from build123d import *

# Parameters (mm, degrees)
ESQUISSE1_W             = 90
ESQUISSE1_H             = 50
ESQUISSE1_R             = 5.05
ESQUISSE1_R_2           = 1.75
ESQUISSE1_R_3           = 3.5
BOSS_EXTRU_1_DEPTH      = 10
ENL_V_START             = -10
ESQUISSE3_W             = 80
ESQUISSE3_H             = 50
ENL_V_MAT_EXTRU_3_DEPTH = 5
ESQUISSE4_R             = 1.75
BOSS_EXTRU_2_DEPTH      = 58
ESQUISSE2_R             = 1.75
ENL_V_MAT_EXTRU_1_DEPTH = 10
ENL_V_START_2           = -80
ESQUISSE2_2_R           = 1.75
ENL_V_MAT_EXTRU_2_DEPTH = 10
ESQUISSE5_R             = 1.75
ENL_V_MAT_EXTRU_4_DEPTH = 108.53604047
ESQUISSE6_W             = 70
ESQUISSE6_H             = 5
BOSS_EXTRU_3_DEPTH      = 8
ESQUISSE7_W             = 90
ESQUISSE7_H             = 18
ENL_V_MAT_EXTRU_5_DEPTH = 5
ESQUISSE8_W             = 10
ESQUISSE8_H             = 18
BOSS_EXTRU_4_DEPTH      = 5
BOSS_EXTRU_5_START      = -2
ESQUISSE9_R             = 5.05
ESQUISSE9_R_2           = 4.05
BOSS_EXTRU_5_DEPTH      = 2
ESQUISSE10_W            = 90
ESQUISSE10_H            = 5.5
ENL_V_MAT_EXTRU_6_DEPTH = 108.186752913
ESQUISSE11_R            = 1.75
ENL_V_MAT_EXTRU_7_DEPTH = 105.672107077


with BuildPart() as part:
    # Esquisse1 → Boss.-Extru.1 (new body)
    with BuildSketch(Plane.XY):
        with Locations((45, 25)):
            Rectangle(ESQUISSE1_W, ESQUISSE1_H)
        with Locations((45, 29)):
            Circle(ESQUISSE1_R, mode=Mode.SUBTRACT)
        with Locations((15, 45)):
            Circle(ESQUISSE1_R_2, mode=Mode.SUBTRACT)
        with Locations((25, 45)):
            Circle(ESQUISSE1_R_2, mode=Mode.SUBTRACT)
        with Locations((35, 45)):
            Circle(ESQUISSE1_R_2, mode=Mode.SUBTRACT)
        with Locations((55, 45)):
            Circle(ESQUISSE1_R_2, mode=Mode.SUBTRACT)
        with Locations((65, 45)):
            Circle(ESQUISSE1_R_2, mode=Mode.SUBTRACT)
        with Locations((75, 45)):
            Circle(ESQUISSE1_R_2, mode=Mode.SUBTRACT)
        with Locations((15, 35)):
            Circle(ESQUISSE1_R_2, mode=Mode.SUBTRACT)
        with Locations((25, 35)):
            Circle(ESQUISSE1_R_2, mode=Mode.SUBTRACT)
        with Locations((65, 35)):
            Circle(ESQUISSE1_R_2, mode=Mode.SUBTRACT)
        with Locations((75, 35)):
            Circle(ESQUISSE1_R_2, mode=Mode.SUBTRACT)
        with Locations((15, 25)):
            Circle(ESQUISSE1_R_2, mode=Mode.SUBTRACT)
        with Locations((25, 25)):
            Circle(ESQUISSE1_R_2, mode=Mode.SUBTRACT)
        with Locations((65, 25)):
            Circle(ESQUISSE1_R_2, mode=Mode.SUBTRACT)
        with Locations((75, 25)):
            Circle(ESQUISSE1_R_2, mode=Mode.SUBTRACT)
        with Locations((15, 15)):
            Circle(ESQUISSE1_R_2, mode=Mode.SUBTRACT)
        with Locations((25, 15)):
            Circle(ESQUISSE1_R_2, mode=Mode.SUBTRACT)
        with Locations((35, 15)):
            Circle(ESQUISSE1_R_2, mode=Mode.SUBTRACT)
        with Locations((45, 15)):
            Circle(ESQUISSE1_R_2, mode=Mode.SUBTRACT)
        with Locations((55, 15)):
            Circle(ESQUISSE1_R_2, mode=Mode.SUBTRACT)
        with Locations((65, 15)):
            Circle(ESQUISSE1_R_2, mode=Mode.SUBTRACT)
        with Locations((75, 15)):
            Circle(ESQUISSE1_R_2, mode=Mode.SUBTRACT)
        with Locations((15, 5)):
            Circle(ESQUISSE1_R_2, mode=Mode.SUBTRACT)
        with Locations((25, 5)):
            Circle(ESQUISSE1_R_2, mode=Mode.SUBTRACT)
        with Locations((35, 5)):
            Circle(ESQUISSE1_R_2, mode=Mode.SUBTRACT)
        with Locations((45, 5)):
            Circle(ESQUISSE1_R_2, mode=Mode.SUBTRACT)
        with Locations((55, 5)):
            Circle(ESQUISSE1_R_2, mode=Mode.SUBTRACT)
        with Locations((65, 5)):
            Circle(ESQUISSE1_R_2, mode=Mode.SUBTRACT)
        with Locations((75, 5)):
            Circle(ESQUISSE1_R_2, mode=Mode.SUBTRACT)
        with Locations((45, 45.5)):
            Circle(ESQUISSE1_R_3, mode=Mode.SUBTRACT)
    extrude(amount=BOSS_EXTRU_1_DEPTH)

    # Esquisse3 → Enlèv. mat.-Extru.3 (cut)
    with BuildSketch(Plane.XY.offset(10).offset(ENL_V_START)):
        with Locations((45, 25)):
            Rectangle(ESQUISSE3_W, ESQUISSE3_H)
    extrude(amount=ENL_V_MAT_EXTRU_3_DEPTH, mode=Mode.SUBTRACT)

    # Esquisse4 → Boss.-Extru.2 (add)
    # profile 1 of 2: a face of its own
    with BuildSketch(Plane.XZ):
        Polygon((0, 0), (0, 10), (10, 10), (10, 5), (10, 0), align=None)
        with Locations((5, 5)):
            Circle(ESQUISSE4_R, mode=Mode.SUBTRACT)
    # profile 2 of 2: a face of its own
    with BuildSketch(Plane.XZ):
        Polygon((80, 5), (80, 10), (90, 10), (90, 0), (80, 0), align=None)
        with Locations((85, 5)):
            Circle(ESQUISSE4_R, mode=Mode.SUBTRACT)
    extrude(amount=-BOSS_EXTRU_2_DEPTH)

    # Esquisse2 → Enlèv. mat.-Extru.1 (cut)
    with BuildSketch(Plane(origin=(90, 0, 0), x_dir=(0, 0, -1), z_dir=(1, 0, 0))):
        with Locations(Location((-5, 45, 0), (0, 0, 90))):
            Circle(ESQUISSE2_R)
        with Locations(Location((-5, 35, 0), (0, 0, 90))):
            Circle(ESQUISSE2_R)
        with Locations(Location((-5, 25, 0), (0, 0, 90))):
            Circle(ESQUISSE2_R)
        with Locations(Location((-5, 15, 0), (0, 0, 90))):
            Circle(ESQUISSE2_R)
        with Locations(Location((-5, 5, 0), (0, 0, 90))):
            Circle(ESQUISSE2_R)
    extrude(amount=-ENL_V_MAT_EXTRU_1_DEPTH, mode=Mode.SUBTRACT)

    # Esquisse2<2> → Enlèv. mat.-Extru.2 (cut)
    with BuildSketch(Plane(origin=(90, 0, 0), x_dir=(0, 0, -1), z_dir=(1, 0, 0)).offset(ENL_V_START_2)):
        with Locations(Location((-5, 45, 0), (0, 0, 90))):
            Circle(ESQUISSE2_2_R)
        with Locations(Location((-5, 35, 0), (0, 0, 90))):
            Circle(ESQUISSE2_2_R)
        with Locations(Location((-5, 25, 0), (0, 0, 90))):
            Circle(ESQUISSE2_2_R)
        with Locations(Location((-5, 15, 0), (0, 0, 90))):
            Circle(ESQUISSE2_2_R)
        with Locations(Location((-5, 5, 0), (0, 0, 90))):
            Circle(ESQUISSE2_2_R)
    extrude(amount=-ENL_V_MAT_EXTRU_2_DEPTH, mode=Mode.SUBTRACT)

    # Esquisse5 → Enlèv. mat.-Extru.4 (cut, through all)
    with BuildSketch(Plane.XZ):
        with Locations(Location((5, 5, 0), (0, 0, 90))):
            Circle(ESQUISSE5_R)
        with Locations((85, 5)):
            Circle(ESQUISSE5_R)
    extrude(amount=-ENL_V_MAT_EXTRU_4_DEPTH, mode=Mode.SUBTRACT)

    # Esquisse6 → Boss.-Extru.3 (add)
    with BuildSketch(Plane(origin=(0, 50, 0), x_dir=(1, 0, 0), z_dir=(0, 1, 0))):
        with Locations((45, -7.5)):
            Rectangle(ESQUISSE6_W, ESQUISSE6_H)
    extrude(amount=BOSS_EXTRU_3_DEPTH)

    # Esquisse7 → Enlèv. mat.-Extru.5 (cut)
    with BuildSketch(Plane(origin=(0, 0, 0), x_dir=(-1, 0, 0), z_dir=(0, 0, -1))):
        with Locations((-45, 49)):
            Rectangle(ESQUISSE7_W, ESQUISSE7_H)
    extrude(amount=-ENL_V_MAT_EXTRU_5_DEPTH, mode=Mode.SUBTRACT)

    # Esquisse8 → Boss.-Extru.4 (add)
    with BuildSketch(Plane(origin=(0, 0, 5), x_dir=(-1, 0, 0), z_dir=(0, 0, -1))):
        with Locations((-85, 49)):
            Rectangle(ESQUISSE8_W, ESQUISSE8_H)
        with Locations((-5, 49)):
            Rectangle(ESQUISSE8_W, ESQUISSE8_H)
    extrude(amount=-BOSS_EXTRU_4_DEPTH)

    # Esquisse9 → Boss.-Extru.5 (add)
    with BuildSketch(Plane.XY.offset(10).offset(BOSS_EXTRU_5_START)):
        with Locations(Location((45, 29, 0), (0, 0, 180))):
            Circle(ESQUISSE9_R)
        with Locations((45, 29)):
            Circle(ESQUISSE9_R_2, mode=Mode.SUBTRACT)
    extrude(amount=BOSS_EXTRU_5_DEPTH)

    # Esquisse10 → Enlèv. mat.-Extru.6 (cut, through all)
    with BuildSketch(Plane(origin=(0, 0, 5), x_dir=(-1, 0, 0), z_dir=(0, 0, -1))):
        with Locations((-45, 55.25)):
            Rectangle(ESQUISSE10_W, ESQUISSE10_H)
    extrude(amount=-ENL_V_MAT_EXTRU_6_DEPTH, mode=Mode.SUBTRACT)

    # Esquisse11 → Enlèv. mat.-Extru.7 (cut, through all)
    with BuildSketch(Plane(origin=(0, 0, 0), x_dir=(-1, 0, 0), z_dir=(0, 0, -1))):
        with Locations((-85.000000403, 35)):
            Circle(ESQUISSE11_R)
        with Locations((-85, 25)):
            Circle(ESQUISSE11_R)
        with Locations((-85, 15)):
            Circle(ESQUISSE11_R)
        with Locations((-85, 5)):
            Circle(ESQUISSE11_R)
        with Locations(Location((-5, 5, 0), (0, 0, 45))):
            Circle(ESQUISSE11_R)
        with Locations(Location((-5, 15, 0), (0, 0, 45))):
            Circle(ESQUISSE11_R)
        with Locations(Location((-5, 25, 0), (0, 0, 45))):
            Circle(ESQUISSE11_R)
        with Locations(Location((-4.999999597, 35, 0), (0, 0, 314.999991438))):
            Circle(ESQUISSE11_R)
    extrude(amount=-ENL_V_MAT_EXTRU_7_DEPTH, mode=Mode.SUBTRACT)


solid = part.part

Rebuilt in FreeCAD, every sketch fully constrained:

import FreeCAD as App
import Part
import Sketcher

V = App.Vector
Q = App.Units.Quantity

doc = App.newDocument("Part")
body = doc.addObject("PartDesign::Body", "Body")

sketch1 = body.newObject("Sketcher::SketchObject", "Sketch")
sketch1.AttachmentSupport = (doc.getObject("XY_Plane"), [""])
sketch1.MapMode = "FlatFace"
sketch1.addGeometry([
    Part.LineSegment(V(0, 50, 0), V(0, 0, 0)),
    Part.LineSegment(V(0, 0, 0), V(90, 0, 0)),
    Part.LineSegment(V(90, 0, 0), V(90, 50, 0)),
    Part.LineSegment(V(90, 50, 0), V(0, 50, 0)),
    Part.Circle(V(15, 5, 0), V(0, 0, 1), 1.8),
    Part.Circle(V(25, 5, 0), V(0, 0, 1), 1.8),
    Part.Circle(V(35, 5, 0), V(0, 0, 1), 1.8),
    Part.Circle(V(15, 15, 0), V(0, 0, 1), 1.8),
    Part.Circle(V(25, 15, 0), V(0, 0, 1), 1.8),
    Part.Circle(V(15, 25, 0), V(0, 0, 1), 1.8),
    Part.Circle(V(25, 25, 0), V(0, 0, 1), 1.8),
    Part.Circle(V(35, 15, 0), V(0, 0, 1), 1.8),
    Part.Circle(V(45, 5, 0), V(0, 0, 1), 1.8),
    Part.Circle(V(55, 5, 0), V(0, 0, 1), 1.8),
    Part.Circle(V(65, 5, 0), V(0, 0, 1), 1.8),
    Part.Circle(V(75, 5, 0), V(0, 0, 1), 1.8),
    Part.Circle(V(45, 15, 0), V(0, 0, 1), 1.8),
    Part.Circle(V(55, 15, 0), V(0, 0, 1), 1.8),
    Part.Circle(V(65, 15, 0), V(0, 0, 1), 1.8),
    Part.Circle(V(75, 15, 0), V(0, 0, 1), 1.8),
    Part.Circle(V(65, 25, 0), V(0, 0, 1), 1.8),
    Part.Circle(V(75, 25, 0), V(0, 0, 1), 1.8),
    Part.Circle(V(15, 35, 0), V(0, 0, 1), 1.8),
    Part.Circle(V(25, 35, 0), V(0, 0, 1), 1.8),
    Part.Circle(V(15, 45, 0), V(0, 0, 1), 1.8),
    Part.Circle(V(25, 45, 0), V(0, 0, 1), 1.8),
    Part.Circle(V(35, 45, 0), V(0, 0, 1), 1.8),
    Part.Circle(V(45, 29, 0), V(0, 0, 1), 5),
    Part.Circle(V(65, 35, 0), V(0, 0, 1), 1.8),
    Part.Circle(V(75, 35, 0), V(0, 0, 1), 1.8),
    Part.Circle(V(45, 45.5, 0), V(0, 0, 1), 3.5),
    Part.Circle(V(55, 45, 0), V(0, 0, 1), 1.8),
    Part.Circle(V(65, 45, 0), V(0, 0, 1), 1.8),
    Part.Circle(V(75, 45, 0), V(0, 0, 1), 1.8),
], False)
sketch1.addConstraint([
    Sketcher.Constraint("Coincident", 0, 2, 1, 1),
    Sketcher.Constraint("Coincident", 1, 2, 2, 1),
    Sketcher.Constraint("Coincident", 2, 2, 3, 1),
    Sketcher.Constraint("Coincident", 3, 2, 0, 1),
    Sketcher.Constraint("Vertical", 0),
    Sketcher.Constraint("Horizontal", 1),
    Sketcher.Constraint("Vertical", 2),
    Sketcher.Constraint("Horizontal", 3),
    Sketcher.Constraint("Coincident", 0, 2, -1, 1),
    Sketcher.Constraint("Equal", 4, 5),
    Sketcher.Constraint("Equal", 5, 6),
    Sketcher.Constraint("Equal", 6, 7),
    Sketcher.Constraint("Equal", 7, 8),
    Sketcher.Constraint("Equal", 8, 9),
    Sketcher.Constraint("Equal", 9, 10),
    Sketcher.Constraint("Equal", 10, 11),
    Sketcher.Constraint("Equal", 11, 12),
    Sketcher.Constraint("Equal", 12, 13),
    Sketcher.Constraint("Equal", 13, 14),
    Sketcher.Constraint("Equal", 14, 15),
    Sketcher.Constraint("Equal", 15, 16),
    Sketcher.Constraint("Equal", 16, 17),
    Sketcher.Constraint("Equal", 17, 18),
    Sketcher.Constraint("Equal", 18, 19),
    Sketcher.Constraint("Equal", 19, 20),
    Sketcher.Constraint("Equal", 20, 21),
    Sketcher.Constraint("Equal", 21, 22),
    Sketcher.Constraint("Equal", 22, 23),
    Sketcher.Constraint("Equal", 23, 24),
    Sketcher.Constraint("Equal", 24, 25),
    Sketcher.Constraint("Equal", 25, 26),
    Sketcher.Constraint("Equal", 26, 28),
    Sketcher.Constraint("Equal", 28, 29),
    Sketcher.Constraint("Equal", 29, 31),
    Sketcher.Constraint("Equal", 31, 32),
    Sketcher.Constraint("Equal", 32, 33),
    Sketcher.Constraint("Horizontal", 4, 3, 5, 3),
    Sketcher.Constraint("Horizontal", 5, 3, 6, 3),
    Sketcher.Constraint("Horizontal", 7, 3, 8, 3),
    Sketcher.Constraint("Horizontal", 9, 3, 10, 3),
    Sketcher.Constraint("Horizontal", 8, 3, 11, 3),
    Sketcher.Constraint("Horizontal", 6, 3, 12, 3),
    Sketcher.Constraint("Horizontal", 12, 3, 13, 3),
    Sketcher.Constraint("Horizontal", 13, 3, 14, 3),
    Sketcher.Constraint("Horizontal", 14, 3, 15, 3),
    Sketcher.Constraint("Horizontal", 11, 3, 16, 3),
    Sketcher.Constraint("Horizontal", 16, 3, 17, 3),
    Sketcher.Constraint("Horizontal", 17, 3, 18, 3),
    Sketcher.Constraint("Horizontal", 18, 3, 19, 3),
    Sketcher.Constraint("Horizontal", 10, 3, 20, 3),
    Sketcher.Constraint("Horizontal", 20, 3, 21, 3),
    Sketcher.Constraint("Horizontal", 22, 3, 23, 3),
    Sketcher.Constraint("Horizontal", 24, 3, 25, 3),
    Sketcher.Constraint("Horizontal", 25, 3, 26, 3),
    Sketcher.Constraint("Horizontal", 23, 3, 28, 3),
    Sketcher.Constraint("Horizontal", 28, 3, 29, 3),
    Sketcher.Constraint("Horizontal", 26, 3, 31, 3),
    Sketcher.Constraint("Horizontal", 31, 3, 32, 3),
    Sketcher.Constraint("Horizontal", 32, 3, 33, 3),
    Sketcher.Constraint("Vertical", 4, 3, 7, 3),
    Sketcher.Constraint("Vertical", 5, 3, 8, 3),
    Sketcher.Constraint("Vertical", 7, 3, 9, 3),
    Sketcher.Constraint("Vertical", 8, 3, 10, 3),
    Sketcher.Constraint("Vertical", 6, 3, 11, 3),
    Sketcher.Constraint("Vertical", 12, 3, 16, 3),
    Sketcher.Constraint("Vertical", 13, 3, 17, 3),
    Sketcher.Constraint("Vertical", 14, 3, 18, 3),
    Sketcher.Constraint("Vertical", 15, 3, 19, 3),
    Sketcher.Constraint("Vertical", 18, 3, 20, 3),
    Sketcher.Constraint("Vertical", 19, 3, 21, 3),
    Sketcher.Constraint("Vertical", 9, 3, 22, 3),
    Sketcher.Constraint("Vertical", 10, 3, 23, 3),
    Sketcher.Constraint("Vertical", 22, 3, 24, 3),
    Sketcher.Constraint("Vertical", 23, 3, 25, 3),
    Sketcher.Constraint("Vertical", 11, 3, 26, 3),
    Sketcher.Constraint("Vertical", 16, 3, 27, 3),
    Sketcher.Constraint("Vertical", 20, 3, 28, 3),
    Sketcher.Constraint("Vertical", 21, 3, 29, 3),
    Sketcher.Constraint("Vertical", 27, 3, 30, 3),
    Sketcher.Constraint("Vertical", 17, 3, 31, 3),
    Sketcher.Constraint("Vertical", 28, 3, 32, 3),
    Sketcher.Constraint("Vertical", 29, 3, 33, 3),
    Sketcher.Constraint("Diameter", 30, Q("7 mm")),
    Sketcher.Constraint("Diameter", 4, Q("3.5 mm")),
    Sketcher.Constraint("Diameter", 27, Q("10.1 mm")),
    Sketcher.Constraint("DistanceX", 1, 1, 1, 2, Q("90 mm")),
    Sketcher.Constraint("DistanceY", 0, 2, 0, 1, Q("50 mm")),
    Sketcher.Constraint("DistanceX", -1, 1, 4, 3, Q("15 mm")),
    Sketcher.Constraint("DistanceY", -1, 1, 4, 3, Q("5 mm")),
    Sketcher.Constraint("DistanceX", -1, 1, 5, 3, Q("25 mm")),
    Sketcher.Constraint("DistanceX", -1, 1, 6, 3, Q("35 mm")),
    Sketcher.Constraint("DistanceY", -1, 1, 7, 3, Q("15 mm")),
    Sketcher.Constraint("DistanceY", -1, 1, 9, 3, Q("25 mm")),
    Sketcher.Constraint("DistanceX", -1, 1, 12, 3, Q("45 mm")),
    Sketcher.Constraint("DistanceX", -1, 1, 13, 3, Q("55 mm")),
    Sketcher.Constraint("DistanceX", -1, 1, 14, 3, Q("65 mm")),
    Sketcher.Constraint("DistanceX", -1, 1, 15, 3, Q("75 mm")),
    Sketcher.Constraint("DistanceY", -1, 1, 22, 3, Q("35 mm")),
    Sketcher.Constraint("DistanceY", -1, 1, 24, 3, Q("45 mm")),
    Sketcher.Constraint("DistanceY", -1, 1, 27, 3, Q("29 mm")),
    Sketcher.Constraint("DistanceY", -1, 1, 30, 3, Q("45.5 mm")),
])
pad1 = body.newObject("PartDesign::Pad", "Pad")
pad1.Profile = sketch1
pad1.Length = 10

sketch2 = body.newObject("Sketcher::SketchObject", "Sketch001")
sketch2.AttachmentSupport = (doc.getObject("XY_Plane"), [""])
sketch2.MapMode = "FlatFace"
sketch2.addGeometry([
    Part.LineSegment(V(5, 50, 0), V(5, 0, 0)),
    Part.LineSegment(V(5, 0, 0), V(85, 0, 0)),
    Part.LineSegment(V(85, 0, 0), V(85, 50, 0)),
    Part.LineSegment(V(85, 50, 0), V(5, 50, 0)),
], False)
sketch2.addConstraint([
    Sketcher.Constraint("Coincident", 0, 2, 1, 1),
    Sketcher.Constraint("Coincident", 1, 2, 2, 1),
    Sketcher.Constraint("Coincident", 2, 2, 3, 1),
    Sketcher.Constraint("Coincident", 3, 2, 0, 1),
    Sketcher.Constraint("Vertical", 0),
    Sketcher.Constraint("Horizontal", 1),
    Sketcher.Constraint("Vertical", 2),
    Sketcher.Constraint("Horizontal", 3),
    Sketcher.Constraint("PointOnObject", 0, 2, -1),
    Sketcher.Constraint("DistanceX", 1, 1, 1, 2, Q("80 mm")),
    Sketcher.Constraint("DistanceY", 0, 2, 0, 1, Q("50 mm")),
    Sketcher.Constraint("DistanceX", -1, 1, 0, 2, Q("5 mm")),
])
pocket1 = body.newObject("PartDesign::Pocket", "Pocket")
pocket1.Profile = sketch2
pocket1.Length = 5
pocket1.Reversed = True

sketch3 = body.newObject("Sketcher::SketchObject", "Sketch002")
sketch3.AttachmentSupport = (doc.getObject("XZ_Plane"), [""])
sketch3.MapMode = "FlatFace"
sketch3.addGeometry([
    Part.LineSegment(V(0, 10, 0), V(0, 0, 0)),
    Part.LineSegment(V(0, 0, 0), V(10, 0, 0)),
    Part.LineSegment(V(10, 0, 0), V(10, 10, 0)),
    Part.LineSegment(V(10, 10, 0), V(0, 10, 0)),
    Part.Circle(V(5, 5, 0), V(0, 0, 1), 1.8),
    Part.LineSegment(V(80, 10, 0), V(80, 0, 0)),
    Part.LineSegment(V(80, 0, 0), V(90, 0, 0)),
    Part.LineSegment(V(90, 0, 0), V(90, 10, 0)),
    Part.LineSegment(V(90, 10, 0), V(80, 10, 0)),
    Part.Circle(V(85, 5, 0), V(0, 0, 1), 1.8),
], False)
sketch3.addConstraint([
    Sketcher.Constraint("Coincident", 0, 2, 1, 1),
    Sketcher.Constraint("Coincident", 1, 2, 2, 1),
    Sketcher.Constraint("Coincident", 2, 2, 3, 1),
    Sketcher.Constraint("Coincident", 3, 2, 0, 1),
    Sketcher.Constraint("Coincident", 5, 2, 6, 1),
    Sketcher.Constraint("Coincident", 6, 2, 7, 1),
    Sketcher.Constraint("Coincident", 7, 2, 8, 1),
    Sketcher.Constraint("Coincident", 8, 2, 5, 1),
    Sketcher.Constraint("Vertical", 0),
    Sketcher.Constraint("Horizontal", 1),
    Sketcher.Constraint("Vertical", 2),
    Sketcher.Constraint("Horizontal", 3),
    Sketcher.Constraint("Vertical", 5),
    Sketcher.Constraint("Horizontal", 6),
    Sketcher.Constraint("Vertical", 7),
    Sketcher.Constraint("Horizontal", 8),
    Sketcher.Constraint("Coincident", 0, 2, -1, 1),
    Sketcher.Constraint("Equal", 4, 9),
    Sketcher.Constraint("PointOnObject", 5, 2, -1),
    Sketcher.Constraint("Horizontal", 4, 3, 9, 3),
    Sketcher.Constraint("Horizontal", 3, 2, 7, 2),
    Sketcher.Constraint("Equal", 3, 6),
    Sketcher.Constraint("Equal", 8, 0),
    Sketcher.Constraint("Diameter", 4, Q("3.5 mm")),
    Sketcher.Constraint("DistanceX", 1, 1, 1, 2, Q("10 mm")),
    Sketcher.Constraint("DistanceX", -1, 1, 4, 3, Q("5 mm")),
    Sketcher.Constraint("DistanceY", -1, 1, 4, 3, Q("5 mm")),
    Sketcher.Constraint("DistanceX", -1, 1, 9, 3, Q("85 mm")),
    Sketcher.Constraint("DistanceX", -1, 1, 5, 2, Q("80 mm")),
])
pad2 = body.newObject("PartDesign::Pad", "Pad001")
pad2.Profile = sketch3
pad2.Length = 58
pad2.Reversed = True

sketch4 = body.newObject("Sketcher::SketchObject", "Sketch003")
sketch4.AttachmentSupport = (doc.getObject("YZ_Plane"), [""])
sketch4.MapMode = "FlatFace"
sketch4.AttachmentOffset = App.Placement(V(0, 0, 90), App.Rotation())
sketch4.addGeometry([
    Part.Circle(V(45, 5, 0), V(0, 0, 1), 1.8),
    Part.Circle(V(35, 5, 0), V(0, 0, 1), 1.8),
    Part.Circle(V(25, 5, 0), V(0, 0, 1), 1.8),
    Part.Circle(V(15, 5, 0), V(0, 0, 1), 1.8),
    Part.Circle(V(5, 5, 0), V(0, 0, 1), 1.8),
], False)
sketch4.addConstraint([
    Sketcher.Constraint("Equal", 0, 1),
    Sketcher.Constraint("Equal", 1, 2),
    Sketcher.Constraint("Equal", 2, 3),
    Sketcher.Constraint("Equal", 3, 4),
    Sketcher.Constraint("Horizontal", 0, 3, 1, 3),
    Sketcher.Constraint("Horizontal", 1, 3, 2, 3),
    Sketcher.Constraint("Horizontal", 2, 3, 3, 3),
    Sketcher.Constraint("Horizontal", 3, 3, 4, 3),
    Sketcher.Constraint("Diameter", 0, Q("3.5 mm")),
    Sketcher.Constraint("DistanceX", -1, 1, 0, 3, Q("45 mm")),
    Sketcher.Constraint("DistanceY", -1, 1, 0, 3, Q("5 mm")),
    Sketcher.Constraint("DistanceX", -1, 1, 1, 3, Q("35 mm")),
    Sketcher.Constraint("DistanceX", -1, 1, 2, 3, Q("25 mm")),
    Sketcher.Constraint("DistanceX", -1, 1, 3, 3, Q("15 mm")),
    Sketcher.Constraint("DistanceX", -1, 1, 4, 3, Q("5 mm")),
])
pocket2 = body.newObject("PartDesign::Pocket", "Pocket001")
pocket2.Profile = sketch4
pocket2.Length = 10

sketch5 = body.newObject("Sketcher::SketchObject", "Sketch004")
sketch5.AttachmentSupport = (doc.getObject("YZ_Plane"), [""])
sketch5.MapMode = "FlatFace"
sketch5.AttachmentOffset = App.Placement(V(0, 0, 10), App.Rotation())
sketch5.addGeometry([
    Part.Circle(V(45, 5, 0), V(0, 0, 1), 1.8),
    Part.Circle(V(35, 5, 0), V(0, 0, 1), 1.8),
    Part.Circle(V(25, 5, 0), V(0, 0, 1), 1.8),
    Part.Circle(V(15, 5, 0), V(0, 0, 1), 1.8),
    Part.Circle(V(5, 5, 0), V(0, 0, 1), 1.8),
], False)
sketch5.addConstraint([
    Sketcher.Constraint("Equal", 0, 1),
    Sketcher.Constraint("Equal", 1, 2),
    Sketcher.Constraint("Equal", 2, 3),
    Sketcher.Constraint("Equal", 3, 4),
    Sketcher.Constraint("Horizontal", 0, 3, 1, 3),
    Sketcher.Constraint("Horizontal", 1, 3, 2, 3),
    Sketcher.Constraint("Horizontal", 2, 3, 3, 3),
    Sketcher.Constraint("Horizontal", 3, 3, 4, 3),
    Sketcher.Constraint("Diameter", 0, Q("3.5 mm")),
    Sketcher.Constraint("DistanceX", -1, 1, 0, 3, Q("45 mm")),
    Sketcher.Constraint("DistanceY", -1, 1, 0, 3, Q("5 mm")),
    Sketcher.Constraint("DistanceX", -1, 1, 1, 3, Q("35 mm")),
    Sketcher.Constraint("DistanceX", -1, 1, 2, 3, Q("25 mm")),
    Sketcher.Constraint("DistanceX", -1, 1, 3, 3, Q("15 mm")),
    Sketcher.Constraint("DistanceX", -1, 1, 4, 3, Q("5 mm")),
])
pocket3 = body.newObject("PartDesign::Pocket", "Pocket002")
pocket3.Profile = sketch5
pocket3.Length = 10

sketch6 = body.newObject("Sketcher::SketchObject", "Sketch005")
sketch6.AttachmentSupport = (doc.getObject("XZ_Plane"), [""])
sketch6.MapMode = "FlatFace"
sketch6.addGeometry([
    Part.Circle(V(5, 5, 0), V(0, 0, 1), 1.8),
    Part.Circle(V(85, 5, 0), V(0, 0, 1), 1.8),
], False)
sketch6.addConstraint([
    Sketcher.Constraint("Equal", 0, 1),
    Sketcher.Constraint("Horizontal", 0, 3, 1, 3),
    Sketcher.Constraint("Diameter", 0, Q("3.5 mm")),
    Sketcher.Constraint("DistanceX", -1, 1, 0, 3, Q("5 mm")),
    Sketcher.Constraint("DistanceY", -1, 1, 0, 3, Q("5 mm")),
    Sketcher.Constraint("DistanceX", -1, 1, 1, 3, Q("85 mm")),
])
pocket4 = body.newObject("PartDesign::Pocket", "Pocket003")
pocket4.Profile = sketch6
pocket4.Type = "ThroughAll"

sketch7 = body.newObject("Sketcher::SketchObject", "Sketch006")
sketch7.AttachmentSupport = (doc.getObject("XZ_Plane"), [""])
sketch7.MapMode = "FlatFace"
sketch7.AttachmentOffset = App.Placement(V(0, 0, -50), App.Rotation())
sketch7.addGeometry([
    Part.LineSegment(V(10, 5, 0), V(10, 10, 0)),
    Part.LineSegment(V(10, 10, 0), V(80, 10, 0)),
    Part.LineSegment(V(80, 10, 0), V(80, 5, 0)),
    Part.LineSegment(V(80, 5, 0), V(10, 5, 0)),
], False)
sketch7.addConstraint([
    Sketcher.Constraint("Coincident", 0, 2, 1, 1),
    Sketcher.Constraint("Coincident", 1, 2, 2, 1),
    Sketcher.Constraint("Coincident", 2, 2, 3, 1),
    Sketcher.Constraint("Coincident", 3, 2, 0, 1),
    Sketcher.Constraint("Vertical", 0),
    Sketcher.Constraint("Horizontal", 1),
    Sketcher.Constraint("Vertical", 2),
    Sketcher.Constraint("Horizontal", 3),
    Sketcher.Constraint("DistanceX", 1, 1, 1, 2, Q("70 mm")),
    Sketcher.Constraint("DistanceY", 0, 1, 0, 2, Q("5 mm")),
    Sketcher.Constraint("DistanceX", -1, 1, 0, 2, Q("10 mm")),
    Sketcher.Constraint("DistanceY", -1, 1, 0, 2, Q("10 mm")),
])
pad3 = body.newObject("PartDesign::Pad", "Pad002")
pad3.Profile = sketch7
pad3.Length = 8
pad3.Reversed = True

sketch8 = body.newObject("Sketcher::SketchObject", "Sketch007")
sketch8.AttachmentSupport = (doc.getObject("XY_Plane"), [""])
sketch8.MapMode = "FlatFace"
sketch8.addGeometry([
    Part.LineSegment(V(90, 58, 0), V(90, 40, 0)),
    Part.LineSegment(V(90, 40, 0), V(0, 40, 0)),
    Part.LineSegment(V(0, 40, 0), V(0, 58, 0)),
    Part.LineSegment(V(0, 58, 0), V(90, 58, 0)),
], False)
sketch8.addConstraint([
    Sketcher.Constraint("Coincident", 0, 2, 1, 1),
    Sketcher.Constraint("Coincident", 1, 2, 2, 1),
    Sketcher.Constraint("Coincident", 2, 2, 3, 1),
    Sketcher.Constraint("Coincident", 3, 2, 0, 1),
    Sketcher.Constraint("Vertical", 0),
    Sketcher.Constraint("Horizontal", 1),
    Sketcher.Constraint("Vertical", 2),
    Sketcher.Constraint("Horizontal", 3),
    Sketcher.Constraint("PointOnObject", 1, 2, -2),
    Sketcher.Constraint("DistanceX", 1, 2, 1, 1, Q("90 mm")),
    Sketcher.Constraint("DistanceY", 0, 2, 0, 1, Q("18 mm")),
    Sketcher.Constraint("DistanceY", -1, 1, 0, 2, Q("40 mm")),
])
pocket5 = body.newObject("PartDesign::Pocket", "Pocket004")
pocket5.Profile = sketch8
pocket5.Length = 5
pocket5.Reversed = True

sketch9 = body.newObject("Sketcher::SketchObject", "Sketch008")
sketch9.AttachmentSupport = (doc.getObject("XY_Plane"), [""])
sketch9.MapMode = "FlatFace"
sketch9.AttachmentOffset = App.Placement(V(0, 0, 5), App.Rotation())
sketch9.addGeometry([
    Part.LineSegment(V(90, 58, 0), V(90, 40, 0)),
    Part.LineSegment(V(90, 40, 0), V(80, 40, 0)),
    Part.LineSegment(V(80, 40, 0), V(80, 58, 0)),
    Part.LineSegment(V(80, 58, 0), V(90, 58, 0)),
    Part.LineSegment(V(10, 58, 0), V(10, 40, 0)),
    Part.LineSegment(V(10, 40, 0), V(0, 40, 0)),
    Part.LineSegment(V(0, 40, 0), V(0, 58, 0)),
    Part.LineSegment(V(0, 58, 0), V(10, 58, 0)),
], False)
sketch9.addConstraint([
    Sketcher.Constraint("Coincident", 0, 2, 1, 1),
    Sketcher.Constraint("Coincident", 1, 2, 2, 1),
    Sketcher.Constraint("Coincident", 2, 2, 3, 1),
    Sketcher.Constraint("Coincident", 3, 2, 0, 1),
    Sketcher.Constraint("Coincident", 4, 2, 5, 1),
    Sketcher.Constraint("Coincident", 5, 2, 6, 1),
    Sketcher.Constraint("Coincident", 6, 2, 7, 1),
    Sketcher.Constraint("Coincident", 7, 2, 4, 1),
    Sketcher.Constraint("Vertical", 0),
    Sketcher.Constraint("Horizontal", 1),
    Sketcher.Constraint("Vertical", 2),
    Sketcher.Constraint("Horizontal", 3),
    Sketcher.Constraint("Vertical", 4),
    Sketcher.Constraint("Horizontal", 5),
    Sketcher.Constraint("Vertical", 6),
    Sketcher.Constraint("Horizontal", 7),
    Sketcher.Constraint("PointOnObject", 5, 2, -2),
    Sketcher.Constraint("Horizontal", 1, 2, 4, 2),
    Sketcher.Constraint("Horizontal", 3, 2, 6, 2),
    Sketcher.Constraint("Equal", 3, 5),
    Sketcher.Constraint("DistanceX", 1, 2, 1, 1, Q("10 mm")),
    Sketcher.Constraint("DistanceY", 0, 2, 0, 1, Q("18 mm")),
    Sketcher.Constraint("DistanceX", -1, 1, 0, 2, Q("90 mm")),
    Sketcher.Constraint("DistanceY", -1, 1, 0, 2, Q("40 mm")),
])
pad4 = body.newObject("PartDesign::Pad", "Pad003")
pad4.Profile = sketch9
pad4.Length = 5

sketch10 = body.newObject("Sketcher::SketchObject", "Sketch009")
sketch10.AttachmentSupport = (doc.getObject("XY_Plane"), [""])
sketch10.MapMode = "FlatFace"
sketch10.AttachmentOffset = App.Placement(V(0, 0, 8), App.Rotation())
sketch10.addGeometry([
    Part.Circle(V(45, 29, 0), V(0, 0, 1), 5),
    Part.Circle(V(45, 29, 0), V(0, 0, 1), 4),
], False)
sketch10.addConstraint([
    Sketcher.Constraint("Coincident", 1, 3, 0, 3),
    Sketcher.Constraint("Diameter", 0, Q("10.1 mm")),
    Sketcher.Constraint("Diameter", 1, Q("8.1 mm")),
    Sketcher.Constraint("DistanceX", -1, 1, 0, 3, Q("45 mm")),
    Sketcher.Constraint("DistanceY", -1, 1, 0, 3, Q("29 mm")),
])
pad5 = body.newObject("PartDesign::Pad", "Pad004")
pad5.Profile = sketch10
pad5.Length = 2

sketch11 = body.newObject("Sketcher::SketchObject", "Sketch010")
sketch11.AttachmentSupport = (doc.getObject("XY_Plane"), [""])
sketch11.MapMode = "FlatFace"
sketch11.AttachmentOffset = App.Placement(V(0, 0, 5), App.Rotation())
sketch11.addGeometry([
    Part.LineSegment(V(90, 58, 0), V(90, 52, 0)),
    Part.LineSegment(V(90, 52, 0), V(0, 52, 0)),
    Part.LineSegment(V(0, 52, 0), V(0, 58, 0)),
    Part.LineSegment(V(0, 58, 0), V(90, 58, 0)),
], False)
sketch11.addConstraint([
    Sketcher.Constraint("Coincident", 0, 2, 1, 1),
    Sketcher.Constraint("Coincident", 1, 2, 2, 1),
    Sketcher.Constraint("Coincident", 2, 2, 3, 1),
    Sketcher.Constraint("Coincident", 3, 2, 0, 1),
    Sketcher.Constraint("Vertical", 0),
    Sketcher.Constraint("Horizontal", 1),
    Sketcher.Constraint("Vertical", 2),
    Sketcher.Constraint("Horizontal", 3),
    Sketcher.Constraint("PointOnObject", 1, 2, -2),
    Sketcher.Constraint("DistanceX", 1, 2, 1, 1, Q("90 mm")),
    Sketcher.Constraint("DistanceY", 0, 2, 0, 1, Q("5.5 mm")),
    Sketcher.Constraint("DistanceY", -1, 1, 2, 2, Q("58 mm")),
])
pocket6 = body.newObject("PartDesign::Pocket", "Pocket005")
pocket6.Profile = sketch11
pocket6.Type = "ThroughAll"
pocket6.Reversed = True

sketch12 = body.newObject("Sketcher::SketchObject", "Sketch011")
sketch12.AttachmentSupport = (doc.getObject("XY_Plane"), [""])
sketch12.MapMode = "FlatFace"
sketch12.addGeometry([
    Part.Circle(V(85, 35, 0), V(0, 0, 1), 1.8),
    Part.Circle(V(85, 25, 0), V(0, 0, 1), 1.8),
    Part.Circle(V(85, 15, 0), V(0, 0, 1), 1.8),
    Part.Circle(V(85, 5, 0), V(0, 0, 1), 1.8),
    Part.Circle(V(5, 5, 0), V(0, 0, 1), 1.8),
    Part.Circle(V(5, 15, 0), V(0, 0, 1), 1.8),
    Part.Circle(V(5, 25, 0), V(0, 0, 1), 1.8),
    Part.Circle(V(5, 35, 0), V(0, 0, 1), 1.8),
], False)
sketch12.addConstraint([
    Sketcher.Constraint("Equal", 0, 1),
    Sketcher.Constraint("Equal", 1, 2),
    Sketcher.Constraint("Equal", 2, 3),
    Sketcher.Constraint("Equal", 3, 4),
    Sketcher.Constraint("Equal", 4, 5),
    Sketcher.Constraint("Equal", 5, 6),
    Sketcher.Constraint("Equal", 6, 7),
    Sketcher.Constraint("Horizontal", 3, 3, 4, 3),
    Sketcher.Constraint("Horizontal", 2, 3, 5, 3),
    Sketcher.Constraint("Horizontal", 1, 3, 6, 3),
    Sketcher.Constraint("Horizontal", 0, 3, 7, 3),
    Sketcher.Constraint("Vertical", 0, 3, 1, 3),
    Sketcher.Constraint("Vertical", 1, 3, 2, 3),
    Sketcher.Constraint("Vertical", 2, 3, 3, 3),
    Sketcher.Constraint("Vertical", 4, 3, 5, 3),
    Sketcher.Constraint("Vertical", 5, 3, 6, 3),
    Sketcher.Constraint("Vertical", 6, 3, 7, 3),
    Sketcher.Constraint("Diameter", 0, Q("3.5 mm")),
    Sketcher.Constraint("DistanceX", -1, 1, 0, 3, Q("85 mm")),
    Sketcher.Constraint("DistanceY", -1, 1, 0, 3, Q("35 mm")),
    Sketcher.Constraint("DistanceY", -1, 1, 1, 3, Q("25 mm")),
    Sketcher.Constraint("DistanceY", -1, 1, 2, 3, Q("15 mm")),
    Sketcher.Constraint("DistanceY", -1, 1, 3, 3, Q("5 mm")),
    Sketcher.Constraint("DistanceX", -1, 1, 4, 3, Q("5 mm")),
])
pocket7 = body.newObject("PartDesign::Pocket", "Pocket006")
pocket7.Profile = sketch12
pocket7.Type = "ThroughAll"
pocket7.Reversed = True

doc.recompute()
